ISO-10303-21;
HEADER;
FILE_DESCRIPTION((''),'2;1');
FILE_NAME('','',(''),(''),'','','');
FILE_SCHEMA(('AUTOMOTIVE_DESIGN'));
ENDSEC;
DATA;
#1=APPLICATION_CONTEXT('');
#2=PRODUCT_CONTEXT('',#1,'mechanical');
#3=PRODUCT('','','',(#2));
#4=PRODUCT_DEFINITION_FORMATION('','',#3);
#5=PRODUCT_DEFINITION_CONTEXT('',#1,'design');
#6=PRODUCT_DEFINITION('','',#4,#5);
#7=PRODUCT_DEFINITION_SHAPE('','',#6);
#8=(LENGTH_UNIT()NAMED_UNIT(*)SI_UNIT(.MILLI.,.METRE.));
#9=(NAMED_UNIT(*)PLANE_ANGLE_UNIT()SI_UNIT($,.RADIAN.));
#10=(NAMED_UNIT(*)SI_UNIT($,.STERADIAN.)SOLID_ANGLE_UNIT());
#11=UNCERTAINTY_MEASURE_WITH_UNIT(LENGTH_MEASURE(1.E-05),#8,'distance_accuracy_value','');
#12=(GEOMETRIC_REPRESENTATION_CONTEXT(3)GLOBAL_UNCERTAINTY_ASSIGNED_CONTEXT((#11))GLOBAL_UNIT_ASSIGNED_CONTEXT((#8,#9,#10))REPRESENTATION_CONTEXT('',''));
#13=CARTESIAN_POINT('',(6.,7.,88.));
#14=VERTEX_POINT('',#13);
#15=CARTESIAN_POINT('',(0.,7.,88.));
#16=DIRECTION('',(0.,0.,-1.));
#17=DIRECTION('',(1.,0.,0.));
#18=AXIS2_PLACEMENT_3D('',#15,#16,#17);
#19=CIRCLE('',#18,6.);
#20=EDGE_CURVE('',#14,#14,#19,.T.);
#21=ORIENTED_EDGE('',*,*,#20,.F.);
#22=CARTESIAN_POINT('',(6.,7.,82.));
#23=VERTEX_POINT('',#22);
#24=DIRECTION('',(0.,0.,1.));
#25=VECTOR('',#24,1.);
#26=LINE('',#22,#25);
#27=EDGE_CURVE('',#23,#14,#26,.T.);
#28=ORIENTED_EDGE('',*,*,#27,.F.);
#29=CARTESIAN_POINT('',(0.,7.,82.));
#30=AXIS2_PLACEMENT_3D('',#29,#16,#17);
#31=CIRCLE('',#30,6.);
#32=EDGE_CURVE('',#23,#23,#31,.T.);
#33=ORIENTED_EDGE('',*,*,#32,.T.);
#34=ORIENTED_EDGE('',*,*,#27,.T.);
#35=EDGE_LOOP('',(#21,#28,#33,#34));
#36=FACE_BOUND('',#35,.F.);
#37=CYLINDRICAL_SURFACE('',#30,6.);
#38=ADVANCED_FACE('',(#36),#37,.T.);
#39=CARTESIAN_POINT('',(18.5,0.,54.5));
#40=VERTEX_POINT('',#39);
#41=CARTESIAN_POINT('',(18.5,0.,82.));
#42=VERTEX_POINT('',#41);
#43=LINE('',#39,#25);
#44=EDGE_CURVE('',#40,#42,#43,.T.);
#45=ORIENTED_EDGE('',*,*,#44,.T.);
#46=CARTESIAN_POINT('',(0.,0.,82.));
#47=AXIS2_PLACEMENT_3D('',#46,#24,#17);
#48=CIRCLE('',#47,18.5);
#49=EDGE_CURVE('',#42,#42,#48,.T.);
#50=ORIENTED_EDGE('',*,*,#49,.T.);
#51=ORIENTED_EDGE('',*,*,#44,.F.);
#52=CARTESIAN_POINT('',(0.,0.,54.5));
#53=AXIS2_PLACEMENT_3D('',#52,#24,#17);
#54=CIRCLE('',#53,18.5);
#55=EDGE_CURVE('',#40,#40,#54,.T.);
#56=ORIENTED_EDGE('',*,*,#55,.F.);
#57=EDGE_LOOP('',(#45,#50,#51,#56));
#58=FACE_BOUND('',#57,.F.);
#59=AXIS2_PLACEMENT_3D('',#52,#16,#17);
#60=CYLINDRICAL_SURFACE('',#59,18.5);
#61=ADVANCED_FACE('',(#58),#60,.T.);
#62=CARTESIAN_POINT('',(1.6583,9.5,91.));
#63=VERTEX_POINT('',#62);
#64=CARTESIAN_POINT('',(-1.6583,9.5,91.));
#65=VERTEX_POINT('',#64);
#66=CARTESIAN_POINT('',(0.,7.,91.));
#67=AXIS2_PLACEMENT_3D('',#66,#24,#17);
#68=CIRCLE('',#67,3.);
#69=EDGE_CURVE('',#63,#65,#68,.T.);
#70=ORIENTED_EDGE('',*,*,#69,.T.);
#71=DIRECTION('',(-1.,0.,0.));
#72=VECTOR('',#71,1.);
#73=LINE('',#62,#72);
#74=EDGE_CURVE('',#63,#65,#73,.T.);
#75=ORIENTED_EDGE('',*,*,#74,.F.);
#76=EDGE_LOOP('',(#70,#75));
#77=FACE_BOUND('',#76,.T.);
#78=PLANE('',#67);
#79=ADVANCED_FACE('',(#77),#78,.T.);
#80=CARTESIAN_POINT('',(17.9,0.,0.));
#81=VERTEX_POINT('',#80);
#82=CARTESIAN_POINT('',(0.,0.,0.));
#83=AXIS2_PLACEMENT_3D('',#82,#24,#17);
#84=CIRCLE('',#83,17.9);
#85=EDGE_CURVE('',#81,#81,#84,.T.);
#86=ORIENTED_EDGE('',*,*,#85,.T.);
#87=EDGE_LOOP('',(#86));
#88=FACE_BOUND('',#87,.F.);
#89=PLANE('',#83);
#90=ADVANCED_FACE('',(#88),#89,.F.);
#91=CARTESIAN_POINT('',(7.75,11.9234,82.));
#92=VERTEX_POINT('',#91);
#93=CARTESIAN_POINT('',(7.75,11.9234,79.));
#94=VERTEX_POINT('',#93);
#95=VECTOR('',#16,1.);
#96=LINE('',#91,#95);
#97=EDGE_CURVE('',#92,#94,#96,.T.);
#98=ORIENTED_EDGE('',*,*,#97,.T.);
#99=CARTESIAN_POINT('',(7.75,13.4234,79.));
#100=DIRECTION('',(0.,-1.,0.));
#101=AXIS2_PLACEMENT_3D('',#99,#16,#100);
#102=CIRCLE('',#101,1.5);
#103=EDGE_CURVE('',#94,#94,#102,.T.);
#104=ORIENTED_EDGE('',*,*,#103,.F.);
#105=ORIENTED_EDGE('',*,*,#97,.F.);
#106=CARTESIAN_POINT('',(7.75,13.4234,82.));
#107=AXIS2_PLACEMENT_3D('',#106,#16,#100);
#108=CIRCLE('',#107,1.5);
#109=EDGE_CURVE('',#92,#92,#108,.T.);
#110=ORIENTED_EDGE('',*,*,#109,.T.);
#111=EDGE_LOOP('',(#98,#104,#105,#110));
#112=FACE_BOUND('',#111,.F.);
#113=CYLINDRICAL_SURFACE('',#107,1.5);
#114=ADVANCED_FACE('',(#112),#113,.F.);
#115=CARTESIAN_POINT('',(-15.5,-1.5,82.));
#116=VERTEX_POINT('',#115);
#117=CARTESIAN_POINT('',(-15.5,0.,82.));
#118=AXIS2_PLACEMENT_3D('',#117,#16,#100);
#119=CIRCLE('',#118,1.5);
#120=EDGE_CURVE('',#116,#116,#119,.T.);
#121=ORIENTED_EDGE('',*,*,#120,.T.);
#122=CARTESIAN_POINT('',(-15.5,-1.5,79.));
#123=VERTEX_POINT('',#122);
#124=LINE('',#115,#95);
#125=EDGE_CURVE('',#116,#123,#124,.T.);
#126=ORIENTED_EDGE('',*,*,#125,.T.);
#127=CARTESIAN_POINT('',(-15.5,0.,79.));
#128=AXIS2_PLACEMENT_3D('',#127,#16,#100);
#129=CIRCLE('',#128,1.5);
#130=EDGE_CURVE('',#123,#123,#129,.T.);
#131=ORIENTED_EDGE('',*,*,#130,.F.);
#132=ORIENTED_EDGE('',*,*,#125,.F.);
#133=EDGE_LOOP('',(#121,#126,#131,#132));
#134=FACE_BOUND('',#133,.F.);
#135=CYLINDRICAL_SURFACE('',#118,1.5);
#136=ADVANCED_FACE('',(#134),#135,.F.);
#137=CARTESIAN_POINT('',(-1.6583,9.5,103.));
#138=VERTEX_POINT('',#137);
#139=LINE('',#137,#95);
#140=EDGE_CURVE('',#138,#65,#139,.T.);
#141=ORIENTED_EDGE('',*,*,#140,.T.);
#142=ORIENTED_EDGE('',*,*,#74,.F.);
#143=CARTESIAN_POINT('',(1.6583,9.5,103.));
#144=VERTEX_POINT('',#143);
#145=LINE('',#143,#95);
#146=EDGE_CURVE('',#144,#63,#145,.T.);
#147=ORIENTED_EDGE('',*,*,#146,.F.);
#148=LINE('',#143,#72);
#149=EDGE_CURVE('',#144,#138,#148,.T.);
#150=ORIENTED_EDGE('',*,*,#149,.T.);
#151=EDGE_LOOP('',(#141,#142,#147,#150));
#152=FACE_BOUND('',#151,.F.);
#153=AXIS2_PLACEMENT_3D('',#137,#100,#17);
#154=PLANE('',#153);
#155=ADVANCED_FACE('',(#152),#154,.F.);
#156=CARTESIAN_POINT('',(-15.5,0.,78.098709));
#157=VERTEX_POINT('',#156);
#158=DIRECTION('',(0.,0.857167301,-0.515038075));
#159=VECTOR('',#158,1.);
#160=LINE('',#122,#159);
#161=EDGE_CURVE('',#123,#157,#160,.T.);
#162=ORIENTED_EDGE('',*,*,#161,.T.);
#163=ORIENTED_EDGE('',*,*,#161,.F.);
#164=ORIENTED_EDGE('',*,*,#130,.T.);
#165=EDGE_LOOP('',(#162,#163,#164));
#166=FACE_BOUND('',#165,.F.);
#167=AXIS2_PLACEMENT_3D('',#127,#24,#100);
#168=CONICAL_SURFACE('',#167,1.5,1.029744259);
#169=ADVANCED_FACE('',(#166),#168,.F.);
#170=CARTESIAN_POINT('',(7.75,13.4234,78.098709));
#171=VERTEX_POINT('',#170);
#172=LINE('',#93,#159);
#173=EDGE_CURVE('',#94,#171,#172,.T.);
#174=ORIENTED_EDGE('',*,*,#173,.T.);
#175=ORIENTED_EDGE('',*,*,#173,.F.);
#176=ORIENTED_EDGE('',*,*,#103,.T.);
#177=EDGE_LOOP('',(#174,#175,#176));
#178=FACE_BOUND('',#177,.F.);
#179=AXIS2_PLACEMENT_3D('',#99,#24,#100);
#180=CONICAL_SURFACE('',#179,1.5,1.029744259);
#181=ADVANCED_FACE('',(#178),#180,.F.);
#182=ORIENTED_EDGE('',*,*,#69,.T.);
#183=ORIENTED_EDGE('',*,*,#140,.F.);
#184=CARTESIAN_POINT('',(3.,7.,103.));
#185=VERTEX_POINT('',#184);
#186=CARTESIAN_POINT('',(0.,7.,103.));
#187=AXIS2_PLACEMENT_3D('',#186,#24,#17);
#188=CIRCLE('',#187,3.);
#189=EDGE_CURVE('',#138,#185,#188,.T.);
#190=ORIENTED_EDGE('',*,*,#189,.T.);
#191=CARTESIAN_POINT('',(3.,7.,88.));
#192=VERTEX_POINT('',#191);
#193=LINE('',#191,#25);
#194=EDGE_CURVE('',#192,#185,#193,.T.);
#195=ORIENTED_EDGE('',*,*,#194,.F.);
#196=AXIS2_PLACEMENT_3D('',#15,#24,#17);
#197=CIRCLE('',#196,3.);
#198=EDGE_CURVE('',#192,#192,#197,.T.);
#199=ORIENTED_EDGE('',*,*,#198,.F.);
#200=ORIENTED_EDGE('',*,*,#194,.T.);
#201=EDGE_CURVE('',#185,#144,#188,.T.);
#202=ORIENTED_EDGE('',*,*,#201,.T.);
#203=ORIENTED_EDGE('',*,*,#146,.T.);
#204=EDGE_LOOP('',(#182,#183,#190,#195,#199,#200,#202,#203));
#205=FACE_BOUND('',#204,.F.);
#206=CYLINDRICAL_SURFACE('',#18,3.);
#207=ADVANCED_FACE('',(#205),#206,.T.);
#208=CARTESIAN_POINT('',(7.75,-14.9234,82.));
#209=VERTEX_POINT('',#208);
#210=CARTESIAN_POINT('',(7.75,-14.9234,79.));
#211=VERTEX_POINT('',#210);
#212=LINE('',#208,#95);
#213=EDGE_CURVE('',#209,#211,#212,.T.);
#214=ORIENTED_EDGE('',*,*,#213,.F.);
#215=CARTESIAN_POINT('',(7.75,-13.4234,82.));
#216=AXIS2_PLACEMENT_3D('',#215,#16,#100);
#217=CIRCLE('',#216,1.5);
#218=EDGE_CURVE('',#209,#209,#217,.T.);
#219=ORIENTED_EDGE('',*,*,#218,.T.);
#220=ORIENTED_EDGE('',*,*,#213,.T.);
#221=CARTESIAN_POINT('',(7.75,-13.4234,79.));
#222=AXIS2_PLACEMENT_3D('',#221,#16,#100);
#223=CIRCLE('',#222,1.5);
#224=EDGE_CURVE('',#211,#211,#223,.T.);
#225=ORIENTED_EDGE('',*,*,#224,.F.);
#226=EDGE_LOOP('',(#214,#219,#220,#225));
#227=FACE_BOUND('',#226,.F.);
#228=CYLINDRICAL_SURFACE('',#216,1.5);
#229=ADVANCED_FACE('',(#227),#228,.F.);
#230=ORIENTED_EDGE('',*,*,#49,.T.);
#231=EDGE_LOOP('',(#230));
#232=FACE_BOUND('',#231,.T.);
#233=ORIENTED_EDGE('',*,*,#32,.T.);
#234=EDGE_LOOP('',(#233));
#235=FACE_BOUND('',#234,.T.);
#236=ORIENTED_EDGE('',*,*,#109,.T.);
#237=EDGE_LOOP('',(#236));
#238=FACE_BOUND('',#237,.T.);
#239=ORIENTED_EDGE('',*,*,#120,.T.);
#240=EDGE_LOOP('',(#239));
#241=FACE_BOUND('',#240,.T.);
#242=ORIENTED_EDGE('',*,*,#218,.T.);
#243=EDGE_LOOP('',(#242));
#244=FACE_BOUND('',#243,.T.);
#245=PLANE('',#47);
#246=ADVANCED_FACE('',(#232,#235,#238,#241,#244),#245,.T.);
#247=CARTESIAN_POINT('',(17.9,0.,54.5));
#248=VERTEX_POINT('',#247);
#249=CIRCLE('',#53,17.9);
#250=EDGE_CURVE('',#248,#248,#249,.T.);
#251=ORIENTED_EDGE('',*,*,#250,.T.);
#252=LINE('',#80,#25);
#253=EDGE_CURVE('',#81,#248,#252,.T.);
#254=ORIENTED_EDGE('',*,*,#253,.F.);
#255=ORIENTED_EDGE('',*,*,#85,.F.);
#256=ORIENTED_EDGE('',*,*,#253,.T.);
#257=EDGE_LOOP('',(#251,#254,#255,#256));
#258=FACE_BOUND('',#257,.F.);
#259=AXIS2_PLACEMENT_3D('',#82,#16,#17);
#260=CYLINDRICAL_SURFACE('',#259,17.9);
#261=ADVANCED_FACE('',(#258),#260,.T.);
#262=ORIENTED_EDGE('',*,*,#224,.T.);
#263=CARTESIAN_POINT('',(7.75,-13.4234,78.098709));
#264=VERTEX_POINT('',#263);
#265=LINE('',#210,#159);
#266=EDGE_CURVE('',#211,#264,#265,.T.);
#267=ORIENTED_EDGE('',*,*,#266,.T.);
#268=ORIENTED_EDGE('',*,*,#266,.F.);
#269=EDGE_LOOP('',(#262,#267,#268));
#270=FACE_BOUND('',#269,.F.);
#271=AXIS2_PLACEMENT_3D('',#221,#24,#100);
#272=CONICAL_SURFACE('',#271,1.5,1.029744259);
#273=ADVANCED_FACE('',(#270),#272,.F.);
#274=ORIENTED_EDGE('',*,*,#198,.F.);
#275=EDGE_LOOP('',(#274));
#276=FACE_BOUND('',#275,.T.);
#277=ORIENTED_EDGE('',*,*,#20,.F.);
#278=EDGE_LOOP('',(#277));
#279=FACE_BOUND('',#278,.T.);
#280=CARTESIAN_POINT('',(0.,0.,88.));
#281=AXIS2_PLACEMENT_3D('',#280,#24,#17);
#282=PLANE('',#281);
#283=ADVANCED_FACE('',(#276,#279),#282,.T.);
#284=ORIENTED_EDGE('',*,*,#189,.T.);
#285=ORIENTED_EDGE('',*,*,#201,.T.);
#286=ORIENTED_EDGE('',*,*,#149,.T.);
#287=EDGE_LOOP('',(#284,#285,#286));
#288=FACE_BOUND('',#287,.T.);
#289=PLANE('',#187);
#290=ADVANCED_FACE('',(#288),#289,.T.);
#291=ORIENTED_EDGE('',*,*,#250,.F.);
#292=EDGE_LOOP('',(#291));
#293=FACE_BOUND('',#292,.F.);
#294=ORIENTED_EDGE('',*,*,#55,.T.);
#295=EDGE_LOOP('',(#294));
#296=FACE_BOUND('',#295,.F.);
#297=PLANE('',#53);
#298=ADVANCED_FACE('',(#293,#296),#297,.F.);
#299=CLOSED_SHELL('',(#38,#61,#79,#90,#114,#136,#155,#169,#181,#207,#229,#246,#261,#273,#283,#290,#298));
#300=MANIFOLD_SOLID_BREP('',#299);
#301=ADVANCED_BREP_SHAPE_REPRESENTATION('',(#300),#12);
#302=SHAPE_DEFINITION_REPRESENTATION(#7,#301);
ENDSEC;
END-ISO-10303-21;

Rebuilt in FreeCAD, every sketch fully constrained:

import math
import FreeCAD as App
import Part
import Sketcher

V = App.Vector
Q = App.Units.Quantity

doc = App.newDocument("Part")
body = doc.addObject("PartDesign::Body", "Body")

sketch1 = body.newObject("Sketcher::SketchObject", "Sketch")
sketch1.AttachmentSupport = (doc.getObject("XY_Plane"), [""])
sketch1.MapMode = "FlatFace"
sketch1.addGeometry(Part.Circle(V(0, 0, 0), V(0, 0, 1), 17.9), False)
sketch1.addConstraint([
    Sketcher.Constraint("Coincident", 0, 3, -1, 1),
    Sketcher.Constraint("Diameter", 0, Q("35.8 mm")),
])
pad1 = body.newObject("PartDesign::Pad", "Pad")
pad1.Profile = sketch1
pad1.Length = 54.5

sketch2 = body.newObject("Sketcher::SketchObject", "Sketch001")
sketch2.AttachmentSupport = (doc.getObject("XY_Plane"), [""])
sketch2.MapMode = "FlatFace"
sketch2.AttachmentOffset = App.Placement(V(0, 0, 54.5), App.Rotation())
sketch2.addGeometry(Part.Circle(V(0, 0, 0), V(0, 0, 1), 18.5), False)
sketch2.addConstraint([
    Sketcher.Constraint("Coincident", 0, 3, -1, 1),
    Sketcher.Constraint("Diameter", 0, Q("37 mm")),
])
pad2 = body.newObject("PartDesign::Pad", "Pad001")
pad2.Profile = sketch2
pad2.Length = 27.5

sketch3 = body.newObject("Sketcher::SketchObject", "Sketch002")
sketch3.AttachmentSupport = (doc.getObject("XY_Plane"), [""])
sketch3.MapMode = "FlatFace"
sketch3.AttachmentOffset = App.Placement(V(0, 0, 82), App.Rotation())
sketch3.addGeometry(Part.Circle(V(0, 7, 0), V(0, 0, 1), 6), False)
sketch3.addConstraint([
    Sketcher.Constraint("PointOnObject", 0, 3, -2),
    Sketcher.Constraint("Diameter", 0, Q("12 mm")),
    Sketcher.Constraint("DistanceY", -1, 1, 0, 3, Q("7 mm")),
])
pad3 = body.newObject("PartDesign::Pad", "Pad002")
pad3.Profile = sketch3
pad3.Length = 6

sketch4 = body.newObject("Sketcher::SketchObject", "Sketch003")
sketch4.AttachmentSupport = (doc.getObject("XY_Plane"), [""])
sketch4.MapMode = "FlatFace"
sketch4.AttachmentOffset = App.Placement(V(0, 0, 88), App.Rotation())
sketch4.addGeometry(Part.Circle(V(0, 7, 0), V(0, 0, 1), 3), False)
sketch4.addConstraint([
    Sketcher.Constraint("PointOnObject", 0, 3, -2),
    Sketcher.Constraint("Diameter", 0, Q("6 mm")),
    Sketcher.Constraint("DistanceY", -1, 1, 0, 3, Q("7 mm")),
])
pad4 = body.newObject("PartDesign::Pad", "Pad003")
pad4.Profile = sketch4
pad4.Length = 15

sketch5 = body.newObject("Sketcher::SketchObject", "Sketch004")
sketch5.AttachmentSupport = (doc.getObject("XY_Plane"), [""])
sketch5.MapMode = "FlatFace"
sketch5.AttachmentOffset = App.Placement(V(0, 0, 103), App.Rotation())
sketch5.addGeometry([
    Part.LineSegment(V(-1.6583, 9.5, 0), V(1.6583, 9.5, 0)),
    Part.ArcOfCircle(Part.Circle(V(0, 7, 0), V(0, 0, 1), 3), math.radians(56.442888), math.radians(123.557112)),
], False)
sketch5.addConstraint([
    Sketcher.Constraint("Coincident", 0, 1, 1, 2),
    Sketcher.Constraint("Coincident", 1, 1, 0, 2),
    Sketcher.Constraint("Horizontal", 0),
    Sketcher.Constraint("PointOnObject", 1, 3, -2),
    Sketcher.Constraint("Radius", 1, Q("3 mm")),
    Sketcher.Constraint("DistanceY", -1, 1, 1, 3, Q("7 mm")),
    Sketcher.Constraint("DistanceY", -1, 1, 0, 1, Q("9.5 mm")),
])
pocket1 = body.newObject("PartDesign::Pocket", "Pocket")
pocket1.Profile = sketch5
pocket1.Length = 12

sketch6 = body.newObject("Sketcher::SketchObject", "Sketch005")
sketch6.AttachmentSupport = (doc.getObject("XY_Plane"), [""])
sketch6.MapMode = "FlatFace"
sketch6.AttachmentOffset = App.Placement(V(0, 0, 82), App.Rotation())
sketch6.addGeometry([
    Part.Circle(V(7.75, 13.4234, 0), V(0, 0, 1), 1.5),
    Part.Circle(V(-15.5, 0, 0), V(0, 0, 1), 1.5),
    Part.Circle(V(7.75, -13.4234, 0), V(0, 0, 1), 1.5),
], False)
sketch6.addConstraint([
    Sketcher.Constraint("Equal", 0, 1),
    Sketcher.Constraint("Equal", 1, 2),
    Sketcher.Constraint("Symmetric", 0, 3, 2, 3, -1),
    Sketcher.Constraint("PointOnObject", 1, 3, -1),
    Sketcher.Constraint("Diameter", 0, Q("3 mm")),
    Sketcher.Constraint("DistanceX", 1, 3, -1, 1, Q("15.5 mm")),
    Sketcher.Constraint("DistanceX", -1, 1, 0, 3, Q("7.75 mm")),
    Sketcher.Constraint("DistanceY", -1, 1, 0, 3, Q("13.4234 mm")),
])
doc.recompute()
hole = body.newObject("PartDesign::Hole", "Hole")
hole.Profile = sketch6
hole.ThreadType = "None"
hole.Diameter = 3
hole.DepthType = "Dimension"
hole.Depth = 3
hole.DrillPoint = "Angled"
hole.DrillPointAngle = 118

doc.recompute()
